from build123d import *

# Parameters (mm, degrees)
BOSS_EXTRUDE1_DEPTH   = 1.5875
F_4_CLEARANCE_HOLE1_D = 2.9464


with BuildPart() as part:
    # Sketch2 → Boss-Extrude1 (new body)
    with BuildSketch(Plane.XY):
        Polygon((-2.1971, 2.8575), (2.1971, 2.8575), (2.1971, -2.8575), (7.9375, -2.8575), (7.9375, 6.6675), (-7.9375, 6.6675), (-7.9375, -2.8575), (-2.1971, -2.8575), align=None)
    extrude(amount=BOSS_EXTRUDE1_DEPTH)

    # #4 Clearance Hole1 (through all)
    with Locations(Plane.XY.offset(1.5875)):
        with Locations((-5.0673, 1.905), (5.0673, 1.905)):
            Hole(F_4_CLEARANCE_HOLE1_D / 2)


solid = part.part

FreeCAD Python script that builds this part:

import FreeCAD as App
import Part
import Sketcher
from FreeCAD import Vector
Q = App.Units.Quantity


def add_polygon(sketch, points):
    """Adds a closed chain of lines whose ends are joined by coincident constraints."""
    first, n = sketch.GeometryCount, len(points)
    for a, b in zip(points, points[1:] + points[:1]):
        sketch.addGeometry(Part.LineSegment(App.Vector(*a, 0), App.Vector(*b, 0)), False)
    for i in range(n):
        sketch.addConstraint(Sketcher.Constraint("Coincident", first + i, 2, first + (i + 1) % n, 1))

doc = App.newDocument("Part")
body = doc.addObject("PartDesign::Body", "Body")

# Sketch on XY plane
sketch1 = doc.addObject("Sketcher::SketchObject", "Sketch")
body.addObject(sketch1)
sketch1.AttachmentSupport = (doc.XY_Plane, [""])
sketch1.MapMode = "FlatFace"
add_polygon(sketch1, [(-2.2, 2.9), (2.2, 2.9), (2.2, -2.9), (7.9, -2.9), (7.9, 6.7), (-7.9, 6.7), (-7.9, -2.9), (-2.2, -2.9)])  # lines 0-7
sketch1.addConstraint([
    Sketcher.Constraint("Horizontal", 0),
    Sketcher.Constraint("Vertical", 1),
    Sketcher.Constraint("Horizontal", 2),
    Sketcher.Constraint("Vertical", 3),
    Sketcher.Constraint("Horizontal", 4),
    Sketcher.Constraint("Vertical", 5),
    Sketcher.Constraint("Horizontal", 6),
    Sketcher.Constraint("Vertical", 7),
    Sketcher.Constraint("Symmetric", 0, 2, 6, 2, -1, 1),
    Sketcher.Constraint("Symmetric", 2, 2, 5, 2, -2),
    Sketcher.Constraint("DistanceX", 0, 1, 0, 2, Q("0.173 in")),
    Sketcher.Constraint("DistanceX", 2, 1, 2, 2, Q("0.226 in")),
    Sketcher.Constraint("DistanceY", 1, 2, 1, 1, Q("0.225 in")),
    Sketcher.Constraint("DistanceY", 3, 1, 3, 2, Q("0.375 in")),
])
pad1 = doc.addObject("PartDesign::Pad", "Pad")
body.addObject(pad1)
pad1.Profile = sketch1
pad1.Length = Q("0.0625 in")

# Sketch on XY plane
sketch2 = doc.addObject("Sketcher::SketchObject", "Sketch001")
body.addObject(sketch2)
sketch2.AttachmentSupport = (doc.XY_Plane, [""])
sketch2.MapMode = "FlatFace"
sketch2.AttachmentOffset = App.Placement(Vector(0, 0, 0.0625 * 25.4), App.Rotation())
sketch2.addGeometry([
    Part.Circle(Vector(-5.1, 1.9, 0), Vector(0, 0, 1), 1.5),
    Part.Circle(Vector(5.1, 1.9, 0), Vector(0, 0, 1), 1.5),
], False)
sketch2.addConstraint([
    Sketcher.Constraint("Equal", 0, 1),
    Sketcher.Constraint("Symmetric", 0, 3, 1, 3, -2),
    Sketcher.Constraint("Diameter", 0, Q("0.116 in")),
    Sketcher.Constraint("DistanceY", -1, 1, 0, 3, Q("0.075 in")),
    Sketcher.Constraint("DistanceX", 0, 3, 1, 3, Q("0.399 in")),
])
doc.recompute()
hole = doc.addObject("PartDesign::Hole", "Hole")
body.addObject(hole)
hole.Profile = sketch2
hole.ThreadType = "None"
hole.Diameter = Q("0.116 in")
hole.DepthType = "ThroughAll"

doc.recompute()
